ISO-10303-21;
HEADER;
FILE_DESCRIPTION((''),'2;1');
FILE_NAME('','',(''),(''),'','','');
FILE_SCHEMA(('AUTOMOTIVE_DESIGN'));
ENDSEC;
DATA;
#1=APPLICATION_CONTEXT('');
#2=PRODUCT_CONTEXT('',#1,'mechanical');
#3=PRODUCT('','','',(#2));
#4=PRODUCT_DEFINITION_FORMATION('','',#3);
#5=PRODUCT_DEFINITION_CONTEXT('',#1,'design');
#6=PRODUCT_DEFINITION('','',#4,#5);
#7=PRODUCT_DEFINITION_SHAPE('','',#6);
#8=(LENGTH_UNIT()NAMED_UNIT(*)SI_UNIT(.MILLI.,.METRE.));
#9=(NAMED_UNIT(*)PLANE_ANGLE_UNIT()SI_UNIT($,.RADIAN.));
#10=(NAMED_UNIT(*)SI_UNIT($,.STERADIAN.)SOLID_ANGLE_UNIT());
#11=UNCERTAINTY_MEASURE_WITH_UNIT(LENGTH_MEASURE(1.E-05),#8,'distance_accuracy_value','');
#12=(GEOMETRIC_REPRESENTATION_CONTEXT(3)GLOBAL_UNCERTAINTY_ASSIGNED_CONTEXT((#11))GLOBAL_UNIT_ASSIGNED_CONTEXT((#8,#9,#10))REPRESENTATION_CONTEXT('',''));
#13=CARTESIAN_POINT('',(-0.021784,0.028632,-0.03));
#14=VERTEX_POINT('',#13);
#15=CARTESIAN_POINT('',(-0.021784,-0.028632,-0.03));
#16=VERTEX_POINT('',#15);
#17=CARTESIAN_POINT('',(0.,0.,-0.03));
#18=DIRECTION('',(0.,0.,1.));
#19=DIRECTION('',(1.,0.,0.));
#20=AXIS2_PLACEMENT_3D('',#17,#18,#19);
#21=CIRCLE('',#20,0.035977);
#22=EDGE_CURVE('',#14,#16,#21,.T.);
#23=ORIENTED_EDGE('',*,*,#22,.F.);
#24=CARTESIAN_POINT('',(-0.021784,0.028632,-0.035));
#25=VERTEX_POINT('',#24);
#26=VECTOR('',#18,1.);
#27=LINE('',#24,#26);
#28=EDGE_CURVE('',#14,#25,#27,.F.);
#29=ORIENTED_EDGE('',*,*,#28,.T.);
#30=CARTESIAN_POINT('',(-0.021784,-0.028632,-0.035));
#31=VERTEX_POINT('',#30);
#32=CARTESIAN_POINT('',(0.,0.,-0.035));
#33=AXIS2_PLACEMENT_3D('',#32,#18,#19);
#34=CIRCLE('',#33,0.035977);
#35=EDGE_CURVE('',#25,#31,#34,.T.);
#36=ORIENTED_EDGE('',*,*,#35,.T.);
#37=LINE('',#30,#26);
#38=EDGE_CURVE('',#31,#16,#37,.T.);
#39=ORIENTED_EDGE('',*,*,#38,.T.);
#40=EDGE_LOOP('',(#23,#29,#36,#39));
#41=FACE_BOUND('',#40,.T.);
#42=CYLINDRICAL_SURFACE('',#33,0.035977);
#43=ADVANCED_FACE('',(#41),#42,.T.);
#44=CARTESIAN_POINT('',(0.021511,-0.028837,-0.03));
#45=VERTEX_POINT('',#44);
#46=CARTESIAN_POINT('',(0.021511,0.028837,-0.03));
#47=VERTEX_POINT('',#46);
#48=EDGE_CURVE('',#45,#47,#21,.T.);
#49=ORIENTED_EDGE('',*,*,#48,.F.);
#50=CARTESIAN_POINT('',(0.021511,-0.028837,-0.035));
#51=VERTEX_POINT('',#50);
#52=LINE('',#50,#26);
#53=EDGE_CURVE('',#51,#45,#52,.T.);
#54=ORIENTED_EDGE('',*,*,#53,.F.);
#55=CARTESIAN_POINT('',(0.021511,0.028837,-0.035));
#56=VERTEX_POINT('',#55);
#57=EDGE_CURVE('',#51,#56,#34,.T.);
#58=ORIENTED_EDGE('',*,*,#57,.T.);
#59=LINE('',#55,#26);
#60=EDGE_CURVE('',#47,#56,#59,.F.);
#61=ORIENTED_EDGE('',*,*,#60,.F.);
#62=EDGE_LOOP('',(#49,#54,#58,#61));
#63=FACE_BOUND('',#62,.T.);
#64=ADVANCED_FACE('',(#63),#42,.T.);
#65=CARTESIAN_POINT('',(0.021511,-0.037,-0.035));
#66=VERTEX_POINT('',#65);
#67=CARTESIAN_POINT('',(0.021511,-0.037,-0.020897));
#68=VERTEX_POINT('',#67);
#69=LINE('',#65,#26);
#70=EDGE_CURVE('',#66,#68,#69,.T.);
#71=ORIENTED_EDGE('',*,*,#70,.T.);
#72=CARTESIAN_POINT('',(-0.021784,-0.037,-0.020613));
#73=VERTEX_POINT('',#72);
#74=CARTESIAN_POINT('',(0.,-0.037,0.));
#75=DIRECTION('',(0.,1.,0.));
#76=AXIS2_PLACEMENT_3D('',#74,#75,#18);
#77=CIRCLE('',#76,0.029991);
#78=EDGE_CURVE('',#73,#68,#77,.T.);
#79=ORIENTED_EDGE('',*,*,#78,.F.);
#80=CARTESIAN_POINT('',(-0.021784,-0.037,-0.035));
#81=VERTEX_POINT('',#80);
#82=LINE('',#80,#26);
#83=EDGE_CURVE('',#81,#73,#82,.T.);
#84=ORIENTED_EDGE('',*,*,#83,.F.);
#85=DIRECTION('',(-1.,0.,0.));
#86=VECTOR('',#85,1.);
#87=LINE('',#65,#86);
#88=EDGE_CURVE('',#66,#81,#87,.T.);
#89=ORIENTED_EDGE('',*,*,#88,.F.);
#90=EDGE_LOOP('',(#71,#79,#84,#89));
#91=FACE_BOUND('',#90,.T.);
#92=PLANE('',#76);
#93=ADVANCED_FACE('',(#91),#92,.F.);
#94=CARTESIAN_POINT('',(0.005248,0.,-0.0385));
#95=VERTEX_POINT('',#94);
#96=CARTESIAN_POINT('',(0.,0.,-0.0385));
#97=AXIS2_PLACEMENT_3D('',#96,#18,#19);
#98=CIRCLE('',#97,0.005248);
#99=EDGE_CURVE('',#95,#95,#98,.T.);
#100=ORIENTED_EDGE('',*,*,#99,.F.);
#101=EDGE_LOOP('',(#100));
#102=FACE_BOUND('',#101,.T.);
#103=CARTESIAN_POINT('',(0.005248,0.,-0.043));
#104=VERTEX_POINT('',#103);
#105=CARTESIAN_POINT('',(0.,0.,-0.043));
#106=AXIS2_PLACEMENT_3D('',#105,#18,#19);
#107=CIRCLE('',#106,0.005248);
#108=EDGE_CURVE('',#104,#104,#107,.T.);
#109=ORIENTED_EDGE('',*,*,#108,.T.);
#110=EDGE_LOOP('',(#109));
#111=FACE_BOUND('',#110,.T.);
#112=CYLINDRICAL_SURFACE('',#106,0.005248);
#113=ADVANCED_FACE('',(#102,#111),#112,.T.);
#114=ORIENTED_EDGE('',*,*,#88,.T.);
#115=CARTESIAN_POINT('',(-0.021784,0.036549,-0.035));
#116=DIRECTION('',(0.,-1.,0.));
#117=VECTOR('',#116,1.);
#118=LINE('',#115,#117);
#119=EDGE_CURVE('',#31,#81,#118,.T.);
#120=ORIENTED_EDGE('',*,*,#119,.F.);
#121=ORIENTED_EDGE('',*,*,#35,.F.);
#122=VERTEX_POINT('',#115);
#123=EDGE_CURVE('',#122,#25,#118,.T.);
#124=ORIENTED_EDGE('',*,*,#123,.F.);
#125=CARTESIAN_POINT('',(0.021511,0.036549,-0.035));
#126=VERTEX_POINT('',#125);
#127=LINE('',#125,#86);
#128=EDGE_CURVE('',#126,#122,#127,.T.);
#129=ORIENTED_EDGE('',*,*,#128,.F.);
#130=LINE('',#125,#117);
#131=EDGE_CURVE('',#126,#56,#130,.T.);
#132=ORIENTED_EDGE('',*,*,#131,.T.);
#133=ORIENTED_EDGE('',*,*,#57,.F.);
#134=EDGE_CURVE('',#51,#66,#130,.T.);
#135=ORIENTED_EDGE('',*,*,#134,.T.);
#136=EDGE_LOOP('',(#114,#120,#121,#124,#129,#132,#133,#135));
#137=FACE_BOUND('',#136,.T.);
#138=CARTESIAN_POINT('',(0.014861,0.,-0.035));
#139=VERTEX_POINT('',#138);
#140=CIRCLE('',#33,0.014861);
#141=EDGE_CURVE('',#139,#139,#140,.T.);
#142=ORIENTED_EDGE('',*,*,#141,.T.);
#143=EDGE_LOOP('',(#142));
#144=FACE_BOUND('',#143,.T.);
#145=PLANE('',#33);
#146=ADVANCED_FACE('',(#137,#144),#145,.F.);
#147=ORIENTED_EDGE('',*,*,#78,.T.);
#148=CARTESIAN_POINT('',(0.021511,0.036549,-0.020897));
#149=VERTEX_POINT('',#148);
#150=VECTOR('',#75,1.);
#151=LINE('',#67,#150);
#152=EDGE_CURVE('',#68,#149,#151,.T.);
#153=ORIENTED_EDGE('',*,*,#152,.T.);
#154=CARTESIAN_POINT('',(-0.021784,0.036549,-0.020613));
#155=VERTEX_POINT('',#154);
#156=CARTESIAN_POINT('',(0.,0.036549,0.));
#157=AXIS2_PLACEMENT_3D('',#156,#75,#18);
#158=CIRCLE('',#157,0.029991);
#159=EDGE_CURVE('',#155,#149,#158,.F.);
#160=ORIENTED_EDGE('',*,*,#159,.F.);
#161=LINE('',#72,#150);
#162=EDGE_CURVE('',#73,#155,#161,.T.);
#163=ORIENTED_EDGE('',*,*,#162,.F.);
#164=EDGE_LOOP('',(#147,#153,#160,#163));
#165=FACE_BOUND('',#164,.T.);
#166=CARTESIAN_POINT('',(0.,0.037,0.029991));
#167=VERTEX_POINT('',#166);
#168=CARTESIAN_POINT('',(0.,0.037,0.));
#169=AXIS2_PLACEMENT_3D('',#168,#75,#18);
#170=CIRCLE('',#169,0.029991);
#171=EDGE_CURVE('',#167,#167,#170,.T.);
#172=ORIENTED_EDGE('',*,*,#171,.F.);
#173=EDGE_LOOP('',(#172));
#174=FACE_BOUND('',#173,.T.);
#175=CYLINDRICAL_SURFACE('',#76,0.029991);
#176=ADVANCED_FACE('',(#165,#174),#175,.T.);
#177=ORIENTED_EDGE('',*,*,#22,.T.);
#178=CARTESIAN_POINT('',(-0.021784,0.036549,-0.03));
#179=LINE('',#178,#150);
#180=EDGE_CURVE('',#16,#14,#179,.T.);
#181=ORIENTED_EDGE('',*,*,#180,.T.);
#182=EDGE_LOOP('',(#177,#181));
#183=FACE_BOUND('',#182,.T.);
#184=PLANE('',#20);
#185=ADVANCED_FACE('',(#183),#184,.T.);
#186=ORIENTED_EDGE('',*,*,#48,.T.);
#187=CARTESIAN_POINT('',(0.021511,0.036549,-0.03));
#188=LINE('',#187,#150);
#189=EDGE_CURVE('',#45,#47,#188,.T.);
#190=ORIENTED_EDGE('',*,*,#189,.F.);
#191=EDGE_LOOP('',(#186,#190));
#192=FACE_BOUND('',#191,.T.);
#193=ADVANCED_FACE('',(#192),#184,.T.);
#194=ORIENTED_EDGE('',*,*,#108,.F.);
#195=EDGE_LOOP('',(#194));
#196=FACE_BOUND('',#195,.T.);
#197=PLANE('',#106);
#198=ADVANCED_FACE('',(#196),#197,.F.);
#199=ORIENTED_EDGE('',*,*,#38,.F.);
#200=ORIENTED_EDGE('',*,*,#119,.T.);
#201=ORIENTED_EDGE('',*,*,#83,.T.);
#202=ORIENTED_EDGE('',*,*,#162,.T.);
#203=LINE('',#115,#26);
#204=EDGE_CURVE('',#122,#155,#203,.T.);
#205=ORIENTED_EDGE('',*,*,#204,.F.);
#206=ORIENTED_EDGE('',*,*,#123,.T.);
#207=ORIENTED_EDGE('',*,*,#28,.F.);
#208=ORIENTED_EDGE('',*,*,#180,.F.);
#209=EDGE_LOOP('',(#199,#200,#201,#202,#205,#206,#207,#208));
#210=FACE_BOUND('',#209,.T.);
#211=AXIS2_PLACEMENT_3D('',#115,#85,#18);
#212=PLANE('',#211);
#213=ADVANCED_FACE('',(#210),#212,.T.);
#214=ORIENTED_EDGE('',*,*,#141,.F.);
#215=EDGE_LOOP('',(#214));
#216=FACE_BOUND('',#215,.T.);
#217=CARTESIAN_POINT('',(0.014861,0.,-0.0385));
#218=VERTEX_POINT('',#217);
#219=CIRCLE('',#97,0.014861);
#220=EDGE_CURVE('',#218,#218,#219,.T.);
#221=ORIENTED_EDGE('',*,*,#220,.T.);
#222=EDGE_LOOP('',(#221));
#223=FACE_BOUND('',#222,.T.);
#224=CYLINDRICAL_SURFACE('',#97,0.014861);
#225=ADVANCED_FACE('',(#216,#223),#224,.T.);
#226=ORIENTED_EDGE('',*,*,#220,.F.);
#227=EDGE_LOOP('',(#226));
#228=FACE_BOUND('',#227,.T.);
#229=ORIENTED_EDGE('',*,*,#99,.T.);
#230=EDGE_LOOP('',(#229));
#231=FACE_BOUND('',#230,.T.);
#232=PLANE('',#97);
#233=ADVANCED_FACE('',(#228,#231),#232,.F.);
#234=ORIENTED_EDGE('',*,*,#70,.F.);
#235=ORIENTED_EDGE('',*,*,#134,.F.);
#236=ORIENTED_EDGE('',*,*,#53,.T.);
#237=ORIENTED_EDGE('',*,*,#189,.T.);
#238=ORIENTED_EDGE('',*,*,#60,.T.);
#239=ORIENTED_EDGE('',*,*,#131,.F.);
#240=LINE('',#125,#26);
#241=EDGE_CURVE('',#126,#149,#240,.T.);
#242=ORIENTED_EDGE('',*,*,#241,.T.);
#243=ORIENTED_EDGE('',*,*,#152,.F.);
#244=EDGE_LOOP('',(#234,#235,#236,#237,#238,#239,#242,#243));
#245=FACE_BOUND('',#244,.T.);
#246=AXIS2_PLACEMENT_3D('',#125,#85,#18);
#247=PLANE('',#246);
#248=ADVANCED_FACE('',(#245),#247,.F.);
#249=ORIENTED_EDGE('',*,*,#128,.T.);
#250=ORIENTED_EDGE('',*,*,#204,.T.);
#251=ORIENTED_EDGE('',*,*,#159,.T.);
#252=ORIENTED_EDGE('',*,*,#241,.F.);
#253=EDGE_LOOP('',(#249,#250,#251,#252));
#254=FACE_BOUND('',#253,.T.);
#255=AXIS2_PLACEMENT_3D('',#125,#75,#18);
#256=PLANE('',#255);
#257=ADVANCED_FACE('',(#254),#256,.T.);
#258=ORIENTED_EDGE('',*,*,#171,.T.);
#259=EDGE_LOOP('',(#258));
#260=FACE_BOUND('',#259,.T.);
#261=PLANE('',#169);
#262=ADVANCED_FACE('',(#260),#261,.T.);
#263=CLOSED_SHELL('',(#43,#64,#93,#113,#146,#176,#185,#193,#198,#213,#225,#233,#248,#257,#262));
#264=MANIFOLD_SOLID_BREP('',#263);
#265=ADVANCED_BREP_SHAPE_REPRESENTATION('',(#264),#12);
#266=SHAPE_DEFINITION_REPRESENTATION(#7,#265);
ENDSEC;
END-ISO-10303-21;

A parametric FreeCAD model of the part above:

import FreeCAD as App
import Part
import Sketcher

doc = App.newDocument("Part")
body = doc.addObject("PartDesign::Body", "Body")

# Sketch on XZ plane
sketch1 = body.newObject("Sketcher::SketchObject", "Sketch")
sketch1.AttachmentSupport = (doc.getObject("XZ_Plane"), [""])
sketch1.MapMode = "FlatFace"
sketch1.addGeometry(Part.Circle(App.Vector(0, 0, 0), App.Vector(0, 0, 1), 0.03), False)
sketch1.addConstraint(Sketcher.Constraint("Coincident", 0, 3, -1, 1))
sketch1.addConstraint(Sketcher.Constraint("Diameter", 0, 0.059981))
pad1 = body.newObject("PartDesign::Pad", "Pad")
pad1.Profile = sketch1
pad1.Type = "TwoLengths"
pad1.Length = 0.037
pad1.Length2 = 0.037
pad1.Reversed = True

# Sketch on XY plane
sketch2 = body.newObject("Sketcher::SketchObject", "Sketch001")
sketch2.AttachmentSupport = (doc.getObject("XY_Plane"), [""])
sketch2.MapMode = "FlatFace"
sketch2.addGeometry(Part.LineSegment(App.Vector(-0.022, 0.037, 0), App.Vector(-0.022, -0.037, 0)), False)
sketch2.addGeometry(Part.LineSegment(App.Vector(-0.022, -0.037, 0), App.Vector(0.022, -0.037, 0)), False)
sketch2.addGeometry(Part.LineSegment(App.Vector(0.022, -0.037, 0), App.Vector(0.022, 0.037, 0)), False)
sketch2.addGeometry(Part.LineSegment(App.Vector(0.022, 0.037, 0), App.Vector(-0.022, 0.037, 0)), False)
sketch2.addConstraint(Sketcher.Constraint("Coincident", 0, 2, 1, 1))
sketch2.addConstraint(Sketcher.Constraint("Coincident", 1, 2, 2, 1))
sketch2.addConstraint(Sketcher.Constraint("Coincident", 2, 2, 3, 1))
sketch2.addConstraint(Sketcher.Constraint("Coincident", 3, 2, 0, 1))
sketch2.addConstraint(Sketcher.Constraint("Vertical", 0))
sketch2.addConstraint(Sketcher.Constraint("Horizontal", 1))
sketch2.addConstraint(Sketcher.Constraint("Vertical", 2))
sketch2.addConstraint(Sketcher.Constraint("Horizontal", 3))
sketch2.addConstraint(Sketcher.Constraint("DistanceY", 0, 2, -1, 1, 0.037))
sketch2.addConstraint(Sketcher.Constraint("DistanceY", 0, 2, 0, 1, 0.073549))
sketch2.addConstraint(Sketcher.Constraint("DistanceX", 1, 1, 1, 2, 0.043295))
sketch2.addConstraint(Sketcher.Constraint("DistanceX", -1, 1, 1, 2, 0.021511))
pad2 = body.newObject("PartDesign::Pad", "Pad001")
pad2.Profile = sketch2
pad2.Length = 0.035
pad2.Reversed = True

# Sketch on XY plane
sketch3 = body.newObject("Sketcher::SketchObject", "Sketch002")
sketch3.AttachmentSupport = (doc.getObject("XY_Plane"), [""])
sketch3.MapMode = "FlatFace"
sketch3.AttachmentOffset = App.Placement(App.Vector(0, 0, -0.03), App.Rotation())
sketch3.addGeometry(Part.Circle(App.Vector(0, 0, 0), App.Vector(0, 0, 1), 0.036), False)
sketch3.addConstraint(Sketcher.Constraint("Coincident", 0, 3, -1, 1))
sketch3.addConstraint(Sketcher.Constraint("Diameter", 0, 0.071954))
pad3 = body.newObject("PartDesign::Pad", "Pad002")
pad3.Profile = sketch3
pad3.Length = 0.005
pad3.Reversed = True

# Sketch on XY plane
sketch4 = body.newObject("Sketcher::SketchObject", "Sketch003")
sketch4.AttachmentSupport = (doc.getObject("XY_Plane"), [""])
sketch4.MapMode = "FlatFace"
sketch4.addGeometry(Part.Circle(App.Vector(0, 0, 0), App.Vector(0, 0, 1), 0.015), False)
sketch4.addGeometry(Part.Circle(App.Vector(0, 0, 0), App.Vector(0, 0, 1), 0.005), False)
sketch4.addConstraint(Sketcher.Constraint("Coincident", 0, 3, -1, 1))
sketch4.addConstraint(Sketcher.Constraint("Coincident", 1, 3, -1, 1))
sketch4.addConstraint(Sketcher.Constraint("Diameter", 0, 0.029721))
sketch4.addConstraint(Sketcher.Constraint("Diameter", 1, 0.010496))
pad4 = body.newObject("PartDesign::Pad", "Pad003")
pad4.Profile = sketch4
pad4.Length = 0.0385
pad4.Reversed = True

# Sketch on XY plane
sketch5 = body.newObject("Sketcher::SketchObject", "Sketch004")
sketch5.AttachmentSupport = (doc.getObject("XY_Plane"), [""])
sketch5.MapMode = "FlatFace"
sketch5.addGeometry(Part.Circle(App.Vector(0, 0, 0), App.Vector(0, 0, 1), 0.005), False)
sketch5.addConstraint(Sketcher.Constraint("Coincident", 0, 3, -1, 1))
sketch5.addConstraint(Sketcher.Constraint("Diameter", 0, 0.010496))
pad5 = body.newObject("PartDesign::Pad", "Pad004")
pad5.Profile = sketch5
pad5.Length = 0.043
pad5.Reversed = True

doc.recompute()
